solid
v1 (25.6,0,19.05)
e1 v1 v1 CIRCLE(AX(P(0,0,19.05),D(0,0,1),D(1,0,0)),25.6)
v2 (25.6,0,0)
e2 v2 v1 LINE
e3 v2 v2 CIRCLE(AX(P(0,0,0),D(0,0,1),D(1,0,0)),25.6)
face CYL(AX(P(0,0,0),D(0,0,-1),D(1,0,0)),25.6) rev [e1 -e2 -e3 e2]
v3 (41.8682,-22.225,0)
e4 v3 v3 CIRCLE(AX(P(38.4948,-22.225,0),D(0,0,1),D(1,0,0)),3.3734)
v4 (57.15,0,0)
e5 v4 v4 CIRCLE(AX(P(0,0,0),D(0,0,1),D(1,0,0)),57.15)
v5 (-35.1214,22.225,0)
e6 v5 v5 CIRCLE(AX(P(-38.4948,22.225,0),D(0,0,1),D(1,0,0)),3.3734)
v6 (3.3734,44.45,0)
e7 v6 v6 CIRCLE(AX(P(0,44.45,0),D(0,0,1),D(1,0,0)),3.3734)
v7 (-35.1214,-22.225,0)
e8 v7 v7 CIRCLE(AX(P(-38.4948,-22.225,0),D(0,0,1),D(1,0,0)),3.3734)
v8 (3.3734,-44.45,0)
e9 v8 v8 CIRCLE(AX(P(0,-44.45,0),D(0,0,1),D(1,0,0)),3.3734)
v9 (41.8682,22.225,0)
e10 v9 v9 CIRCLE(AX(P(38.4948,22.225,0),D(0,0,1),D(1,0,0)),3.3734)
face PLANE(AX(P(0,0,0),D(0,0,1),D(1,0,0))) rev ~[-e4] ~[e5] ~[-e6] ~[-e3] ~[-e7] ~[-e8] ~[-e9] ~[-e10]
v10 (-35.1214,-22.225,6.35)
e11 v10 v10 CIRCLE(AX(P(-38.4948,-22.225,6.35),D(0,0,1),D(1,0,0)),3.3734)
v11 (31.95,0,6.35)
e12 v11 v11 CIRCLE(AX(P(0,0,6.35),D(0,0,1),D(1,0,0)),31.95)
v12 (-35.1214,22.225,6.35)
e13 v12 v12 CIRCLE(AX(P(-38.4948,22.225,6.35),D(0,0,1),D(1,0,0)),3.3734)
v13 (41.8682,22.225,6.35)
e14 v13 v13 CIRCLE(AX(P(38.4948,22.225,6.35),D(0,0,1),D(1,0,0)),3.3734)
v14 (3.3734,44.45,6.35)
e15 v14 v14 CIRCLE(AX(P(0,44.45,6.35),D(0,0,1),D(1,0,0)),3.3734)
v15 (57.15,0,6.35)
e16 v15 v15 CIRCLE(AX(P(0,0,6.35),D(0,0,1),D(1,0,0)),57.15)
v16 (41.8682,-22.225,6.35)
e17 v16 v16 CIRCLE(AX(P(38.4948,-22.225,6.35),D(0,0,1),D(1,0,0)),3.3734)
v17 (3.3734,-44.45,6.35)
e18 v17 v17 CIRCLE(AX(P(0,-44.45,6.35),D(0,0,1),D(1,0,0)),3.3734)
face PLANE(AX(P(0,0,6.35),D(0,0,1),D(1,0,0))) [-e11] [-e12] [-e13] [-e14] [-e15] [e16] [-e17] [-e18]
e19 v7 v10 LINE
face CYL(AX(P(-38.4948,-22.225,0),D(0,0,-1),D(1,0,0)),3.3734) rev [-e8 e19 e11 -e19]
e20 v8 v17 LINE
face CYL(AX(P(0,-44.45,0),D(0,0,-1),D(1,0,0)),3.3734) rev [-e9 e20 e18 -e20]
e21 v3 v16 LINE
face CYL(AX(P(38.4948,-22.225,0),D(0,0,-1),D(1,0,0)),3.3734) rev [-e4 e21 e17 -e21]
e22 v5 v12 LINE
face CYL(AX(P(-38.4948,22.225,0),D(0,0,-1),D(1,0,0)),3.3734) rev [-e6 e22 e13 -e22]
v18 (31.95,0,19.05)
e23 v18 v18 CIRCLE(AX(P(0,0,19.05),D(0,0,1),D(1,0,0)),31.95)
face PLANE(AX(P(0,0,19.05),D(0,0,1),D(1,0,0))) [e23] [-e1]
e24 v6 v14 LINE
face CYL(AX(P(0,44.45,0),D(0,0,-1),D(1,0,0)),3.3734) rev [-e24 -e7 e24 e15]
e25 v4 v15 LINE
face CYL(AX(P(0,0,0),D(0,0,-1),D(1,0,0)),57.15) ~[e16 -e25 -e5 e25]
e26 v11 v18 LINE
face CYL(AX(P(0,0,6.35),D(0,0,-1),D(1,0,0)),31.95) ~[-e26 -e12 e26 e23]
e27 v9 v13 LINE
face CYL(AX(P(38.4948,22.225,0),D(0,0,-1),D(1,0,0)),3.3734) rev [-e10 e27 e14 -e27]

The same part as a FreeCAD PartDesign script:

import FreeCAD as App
import Part
import Sketcher
Q = App.Units.Quantity

doc = App.newDocument("Part")
body = doc.addObject("PartDesign::Body", "Body")

sketch1 = body.newObject("Sketcher::SketchObject", "Sketch")
sketch1.AttachmentSupport = (doc.getObject("XY_Plane"), [""])
sketch1.MapMode = "FlatFace"
sketch1.addGeometry([
    Part.Circle(App.Vector(0, 0, 0), App.Vector(0, 0, 1), 57.15),
    Part.Circle(App.Vector(-38.4948, -22.225, 0), App.Vector(0, 0, 1), 3.3734),
    Part.Circle(App.Vector(0, -44.45, 0), App.Vector(0, 0, 1), 3.3734),
    Part.Circle(App.Vector(38.4948, -22.225, 0), App.Vector(0, 0, 1), 3.3734),
    Part.Circle(App.Vector(-38.4948, 22.225, 0), App.Vector(0, 0, 1), 3.3734),
    Part.Circle(App.Vector(0, 0, 0), App.Vector(0, 0, 1), 25.6),
    Part.Circle(App.Vector(38.4948, 22.225, 0), App.Vector(0, 0, 1), 3.3734),
    Part.Circle(App.Vector(0, 44.45, 0), App.Vector(0, 0, 1), 3.3734),
], False)
sketch1.addConstraint([
    Sketcher.Constraint("Coincident", 0, 3, -1, 1),
    Sketcher.Constraint("Coincident", 5, 3, -1, 1),
    Sketcher.Constraint("Equal", 1, 2),
    Sketcher.Constraint("Equal", 2, 3),
    Sketcher.Constraint("Equal", 3, 4),
    Sketcher.Constraint("Equal", 4, 6),
    Sketcher.Constraint("Equal", 6, 7),
    Sketcher.Constraint("Symmetric", 3, 3, 4, 3, -1, 1),
    Sketcher.Constraint("Symmetric", 1, 3, 6, 3, -1, 1),
    Sketcher.Constraint("Symmetric", 2, 3, 7, 3, -1, 1),
    Sketcher.Constraint("Symmetric", 1, 3, 3, 3, -2),
    Sketcher.Constraint("PointOnObject", 2, 3, -2),
    Sketcher.Constraint("Diameter", 0, Q("4.5 in")),
    Sketcher.Constraint("Diameter", 1, Q("0.265622 in")),
    Sketcher.Constraint("Diameter", 5, 51.2),
    Sketcher.Constraint("DistanceY", 2, 3, -1, 1, Q("1.75 in")),
    Sketcher.Constraint("DistanceY", 1, 3, 4, 3, Q("1.75 in")),
    Sketcher.Constraint("DistanceX", 1, 3, -1, 1, 38.4948),
])
pad1 = body.newObject("PartDesign::Pad", "Pad")
pad1.Profile = sketch1
pad1.Length = Q("0.25 in")

sketch2 = body.newObject("Sketcher::SketchObject", "Sketch001")
sketch2.AttachmentSupport = (doc.getObject("XY_Plane"), [""])
sketch2.MapMode = "FlatFace"
sketch2.AttachmentOffset = App.Placement(App.Vector(0, 0, 0.25 * 25.4), App.Rotation())
sketch2.addGeometry([
    Part.Circle(App.Vector(0, 0, 0), App.Vector(0, 0, 1), 31.95),
    Part.Circle(App.Vector(0, 0, 0), App.Vector(0, 0, 1), 25.6),
], False)
sketch2.addConstraint([
    Sketcher.Constraint("Coincident", 0, 3, -1, 1),
    Sketcher.Constraint("Coincident", 1, 3, -1, 1),
    Sketcher.Constraint("Diameter", 0, 63.9),
    Sketcher.Constraint("Diameter", 1, 51.2),
])
pad2 = body.newObject("PartDesign::Pad", "Pad001")
pad2.Profile = sketch2
pad2.Length = Q("0.5 in")

doc.recompute()
